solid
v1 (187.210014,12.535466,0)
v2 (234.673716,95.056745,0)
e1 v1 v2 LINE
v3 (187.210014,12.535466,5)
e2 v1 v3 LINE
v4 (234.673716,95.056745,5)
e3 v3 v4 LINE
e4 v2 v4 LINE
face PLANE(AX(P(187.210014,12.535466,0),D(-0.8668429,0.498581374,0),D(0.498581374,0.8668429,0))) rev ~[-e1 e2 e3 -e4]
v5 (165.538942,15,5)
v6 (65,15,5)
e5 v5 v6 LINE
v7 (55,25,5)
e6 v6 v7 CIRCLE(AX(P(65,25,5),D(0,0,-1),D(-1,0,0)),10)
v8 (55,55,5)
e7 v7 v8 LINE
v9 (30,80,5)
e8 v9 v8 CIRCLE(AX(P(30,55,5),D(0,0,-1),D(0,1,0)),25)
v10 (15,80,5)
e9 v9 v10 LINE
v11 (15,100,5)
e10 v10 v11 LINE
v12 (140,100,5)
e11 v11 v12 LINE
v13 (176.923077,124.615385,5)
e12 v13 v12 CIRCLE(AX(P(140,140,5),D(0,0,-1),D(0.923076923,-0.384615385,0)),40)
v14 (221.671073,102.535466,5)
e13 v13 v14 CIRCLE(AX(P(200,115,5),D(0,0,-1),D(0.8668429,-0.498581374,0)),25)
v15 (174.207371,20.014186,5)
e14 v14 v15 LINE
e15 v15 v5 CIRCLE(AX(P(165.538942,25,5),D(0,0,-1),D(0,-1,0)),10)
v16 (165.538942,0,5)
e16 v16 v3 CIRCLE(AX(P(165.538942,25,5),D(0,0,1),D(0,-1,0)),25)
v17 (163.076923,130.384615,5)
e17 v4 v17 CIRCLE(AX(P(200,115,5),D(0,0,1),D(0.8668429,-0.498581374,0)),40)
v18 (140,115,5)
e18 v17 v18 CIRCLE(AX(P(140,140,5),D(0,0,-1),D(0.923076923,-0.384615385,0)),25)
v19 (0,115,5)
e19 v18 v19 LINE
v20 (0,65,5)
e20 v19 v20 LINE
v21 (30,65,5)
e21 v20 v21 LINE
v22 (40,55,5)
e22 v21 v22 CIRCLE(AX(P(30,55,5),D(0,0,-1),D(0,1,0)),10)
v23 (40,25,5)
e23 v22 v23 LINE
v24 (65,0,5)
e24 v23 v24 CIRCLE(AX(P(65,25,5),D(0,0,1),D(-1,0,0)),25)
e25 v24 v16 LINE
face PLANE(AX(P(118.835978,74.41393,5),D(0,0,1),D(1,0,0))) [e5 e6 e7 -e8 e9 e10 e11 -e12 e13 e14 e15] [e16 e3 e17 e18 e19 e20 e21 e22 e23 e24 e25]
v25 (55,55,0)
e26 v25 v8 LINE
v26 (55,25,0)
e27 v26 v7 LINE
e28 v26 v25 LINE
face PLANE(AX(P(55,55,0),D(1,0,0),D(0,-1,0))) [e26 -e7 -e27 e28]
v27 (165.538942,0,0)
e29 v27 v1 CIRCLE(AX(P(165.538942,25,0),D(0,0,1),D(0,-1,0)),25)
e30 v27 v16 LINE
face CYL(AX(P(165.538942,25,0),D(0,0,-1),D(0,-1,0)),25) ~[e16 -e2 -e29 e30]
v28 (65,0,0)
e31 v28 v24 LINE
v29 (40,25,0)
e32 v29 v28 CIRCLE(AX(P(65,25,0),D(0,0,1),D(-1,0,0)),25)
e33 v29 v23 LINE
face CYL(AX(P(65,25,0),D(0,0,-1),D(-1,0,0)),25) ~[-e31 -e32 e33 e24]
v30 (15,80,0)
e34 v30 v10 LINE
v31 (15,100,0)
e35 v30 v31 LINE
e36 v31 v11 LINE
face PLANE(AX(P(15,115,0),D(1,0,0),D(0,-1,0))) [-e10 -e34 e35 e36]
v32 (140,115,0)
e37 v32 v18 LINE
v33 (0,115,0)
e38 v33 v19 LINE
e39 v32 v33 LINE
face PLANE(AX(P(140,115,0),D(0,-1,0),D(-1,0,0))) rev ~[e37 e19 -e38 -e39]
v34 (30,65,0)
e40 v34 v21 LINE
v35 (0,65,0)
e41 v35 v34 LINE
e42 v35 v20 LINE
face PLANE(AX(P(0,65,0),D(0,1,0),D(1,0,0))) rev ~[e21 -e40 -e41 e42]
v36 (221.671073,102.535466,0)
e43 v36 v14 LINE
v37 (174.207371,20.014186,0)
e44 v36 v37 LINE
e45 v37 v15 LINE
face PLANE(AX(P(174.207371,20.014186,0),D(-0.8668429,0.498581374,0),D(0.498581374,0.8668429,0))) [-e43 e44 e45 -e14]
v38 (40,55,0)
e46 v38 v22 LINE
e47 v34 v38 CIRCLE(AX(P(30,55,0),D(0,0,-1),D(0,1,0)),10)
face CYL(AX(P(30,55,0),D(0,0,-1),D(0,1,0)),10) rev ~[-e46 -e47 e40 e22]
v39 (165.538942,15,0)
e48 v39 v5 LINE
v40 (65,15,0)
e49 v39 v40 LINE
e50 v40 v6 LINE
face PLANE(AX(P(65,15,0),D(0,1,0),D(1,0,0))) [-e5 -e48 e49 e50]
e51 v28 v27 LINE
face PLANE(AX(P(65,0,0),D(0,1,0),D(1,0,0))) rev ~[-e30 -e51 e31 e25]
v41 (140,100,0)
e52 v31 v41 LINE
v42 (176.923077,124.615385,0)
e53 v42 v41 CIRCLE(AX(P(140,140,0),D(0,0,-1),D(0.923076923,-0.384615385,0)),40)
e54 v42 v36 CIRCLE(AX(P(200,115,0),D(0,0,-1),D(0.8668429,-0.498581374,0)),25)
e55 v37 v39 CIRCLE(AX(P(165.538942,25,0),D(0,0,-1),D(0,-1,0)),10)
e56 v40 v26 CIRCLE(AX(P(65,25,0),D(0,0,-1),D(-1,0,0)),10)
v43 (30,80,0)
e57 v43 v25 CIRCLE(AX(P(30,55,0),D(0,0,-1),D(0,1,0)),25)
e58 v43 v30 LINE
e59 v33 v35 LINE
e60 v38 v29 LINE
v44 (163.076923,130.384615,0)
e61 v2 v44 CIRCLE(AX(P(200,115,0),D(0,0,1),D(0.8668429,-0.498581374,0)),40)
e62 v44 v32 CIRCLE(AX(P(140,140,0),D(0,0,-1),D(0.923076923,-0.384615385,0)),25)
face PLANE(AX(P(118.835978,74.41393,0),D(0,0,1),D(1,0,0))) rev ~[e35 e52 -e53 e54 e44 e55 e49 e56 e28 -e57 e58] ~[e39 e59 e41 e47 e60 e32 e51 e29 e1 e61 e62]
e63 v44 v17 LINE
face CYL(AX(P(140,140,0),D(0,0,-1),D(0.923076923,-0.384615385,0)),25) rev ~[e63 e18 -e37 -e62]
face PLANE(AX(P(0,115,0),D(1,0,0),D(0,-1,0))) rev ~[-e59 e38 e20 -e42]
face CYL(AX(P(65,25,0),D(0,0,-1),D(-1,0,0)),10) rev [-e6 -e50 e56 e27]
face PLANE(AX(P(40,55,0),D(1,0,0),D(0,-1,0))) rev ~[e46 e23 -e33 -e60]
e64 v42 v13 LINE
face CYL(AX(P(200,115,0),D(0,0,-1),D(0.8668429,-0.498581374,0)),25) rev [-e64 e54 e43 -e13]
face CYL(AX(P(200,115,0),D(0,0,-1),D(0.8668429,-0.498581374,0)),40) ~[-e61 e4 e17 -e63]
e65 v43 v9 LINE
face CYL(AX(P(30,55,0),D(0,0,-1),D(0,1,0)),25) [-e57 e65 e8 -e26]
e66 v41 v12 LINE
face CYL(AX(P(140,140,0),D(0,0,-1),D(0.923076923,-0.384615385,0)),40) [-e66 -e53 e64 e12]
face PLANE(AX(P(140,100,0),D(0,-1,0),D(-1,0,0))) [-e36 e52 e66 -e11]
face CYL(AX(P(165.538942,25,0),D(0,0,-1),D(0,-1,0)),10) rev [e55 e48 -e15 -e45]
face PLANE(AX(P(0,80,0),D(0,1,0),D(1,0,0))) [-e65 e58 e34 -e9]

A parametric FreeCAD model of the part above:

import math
import FreeCAD as App
import Part
import Sketcher


def faces_at(feature, points):
    """Names of the faces that lie closest to the given points."""
    faces = feature.Shape.Faces
    near = lambda p: min(range(len(faces)), key=lambda i: faces[i].distToShape(Part.Vertex(*p))[0])
    return sorted({f"Face{near(p) + 1}" for p in points})

doc = App.newDocument("Part")
body = doc.addObject("PartDesign::Body", "Body")

# Sketch on XY plane
sketch1 = doc.addObject("Sketcher::SketchObject", "Sketch")
body.addObject(sketch1)
sketch1.AttachmentSupport = (doc.XY_Plane, [""])
sketch1.MapMode = "FlatFace"
sketch1.addGeometry([
    Part.LineSegment(App.Vector(140, 115, 0), App.Vector(0, 115, 0)),  # 0
    Part.LineSegment(App.Vector(0, 115, 0), App.Vector(0, 65, 0)),  # 1
    Part.LineSegment(App.Vector(0, 65, 0), App.Vector(30, 65, 0)),  # 2
    Part.ArcOfCircle(Part.Circle(App.Vector(30, 55, 0), App.Vector(0, 0, 1), 10), math.radians(0), math.radians(90)),  # 3
    Part.LineSegment(App.Vector(40, 55, 0), App.Vector(40, 25, 0)),  # 4
    Part.ArcOfCircle(Part.Circle(App.Vector(65, 25, 0), App.Vector(0, 0, 1), 25), math.radians(180), math.radians(270)),  # 5
    Part.LineSegment(App.Vector(65, 0, 0), App.Vector(166, 0, 0)),  # 6
    Part.ArcOfCircle(Part.Circle(App.Vector(166, 25, 0), App.Vector(0, 0, 1), 25), math.radians(-90), math.radians(-30)),  # 7
    Part.LineSegment(App.Vector(187, 13, 0), App.Vector(235, 95, 0)),  # 8
    Part.ArcOfCircle(Part.Circle(App.Vector(200, 115, 0), App.Vector(0, 0, 1), 40), math.radians(-30), math.radians(157)),  # 9
    Part.ArcOfCircle(Part.Circle(App.Vector(140, 140, 0), App.Vector(0, 0, 1), 25), math.radians(-90), math.radians(-23)),  # 10
], False)
sketch1.addConstraint([
    Sketcher.Constraint("Coincident", 0, 2, 1, 1),
    Sketcher.Constraint("Coincident", 1, 2, 2, 1),
    Sketcher.Constraint("Tangent", 2, 2, 3, 2),
    Sketcher.Constraint("Tangent", 3, 1, 4, 1),
    Sketcher.Constraint("Tangent", 4, 2, 5, 1),
    Sketcher.Constraint("Tangent", 5, 2, 6, 1),
    Sketcher.Constraint("Tangent", 6, 2, 7, 1),
    Sketcher.Constraint("Tangent", 7, 2, 8, 1),
    Sketcher.Constraint("Tangent", 8, 2, 9, 1),
    Sketcher.Constraint("Tangent", 9, 2, 10, 2),
    Sketcher.Constraint("Tangent", 10, 1, 0, 1),
    Sketcher.Constraint("Horizontal", 0),
    Sketcher.Constraint("Vertical", 1),
    Sketcher.Constraint("Horizontal", 2),
    Sketcher.Constraint("Vertical", 4),
    Sketcher.Constraint("Horizontal", 6),
    Sketcher.Constraint("Equal", 5, 7),
    Sketcher.Constraint("Equal", 7, 10),
    Sketcher.Constraint("PointOnObject", 0, 2, -2),
    Sketcher.Constraint("PointOnObject", 5, 2, -1),
    Sketcher.Constraint("Horizontal", 9, 3, 0, 2),
    Sketcher.Constraint("Equal", 2, 4),
    Sketcher.Constraint("Radius", 3, 10.0),
    Sketcher.Constraint("Radius", 5, 25.0),
    Sketcher.Constraint("Radius", 9, 40.0),
    Sketcher.Constraint("DistanceX", 0, 2, 0, 1, 140.0),
    Sketcher.Constraint("DistanceX", 2, 1, 2, 2, 30.0),
    Sketcher.Constraint("DistanceY", 1, 2, 1, 1, 50.0),
    Sketcher.Constraint("DistanceX", 6, 1, 6, 2, 100.538942),
])
pad1 = doc.addObject("PartDesign::Pad", "Pad")
body.addObject(pad1)
pad1.Profile = sketch1
pad1.Length = 5
doc.recompute()

thickness = doc.addObject("PartDesign::Thickness", "Thickness")
body.addObject(thickness)
thickness.Base = (pad1, faces_at(pad1, [(120, 77.5, 5), (120, 77.5, 0)]))
thickness.Value = 15
thickness.Reversed = True
thickness.Join = "Intersection"

doc.recompute()
